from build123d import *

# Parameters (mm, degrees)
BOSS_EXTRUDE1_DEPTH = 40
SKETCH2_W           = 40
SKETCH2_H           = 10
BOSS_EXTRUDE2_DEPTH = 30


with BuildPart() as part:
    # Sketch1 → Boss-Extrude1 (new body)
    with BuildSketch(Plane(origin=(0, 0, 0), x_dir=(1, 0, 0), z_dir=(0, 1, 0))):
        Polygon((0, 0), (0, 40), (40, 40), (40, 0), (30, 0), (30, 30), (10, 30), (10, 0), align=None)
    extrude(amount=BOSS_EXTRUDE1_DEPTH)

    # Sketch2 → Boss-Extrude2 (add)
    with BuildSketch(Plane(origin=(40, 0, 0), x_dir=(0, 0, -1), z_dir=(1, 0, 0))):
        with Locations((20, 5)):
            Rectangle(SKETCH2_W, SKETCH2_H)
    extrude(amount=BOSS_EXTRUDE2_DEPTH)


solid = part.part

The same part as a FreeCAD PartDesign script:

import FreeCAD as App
import Part
import Sketcher
from FreeCAD import Vector
Q = App.Units.Quantity


def add_polygon(sketch, points):
    """Adds a closed chain of lines whose ends are joined by coincident constraints."""
    first, n = sketch.GeometryCount, len(points)
    for a, b in zip(points, points[1:] + points[:1]):
        sketch.addGeometry(Part.LineSegment(App.Vector(*a, 0), App.Vector(*b, 0)), False)
    for i in range(n):
        sketch.addConstraint(Sketcher.Constraint("Coincident", first + i, 2, first + (i + 1) % n, 1))

doc = App.newDocument("Part")
params = doc.addObject("Spreadsheet::Sheet", "Params")
for row, (alias, value) in enumerate([
    ("sketch1_width", "10 mm"),
    ("sketch1_width2", "20 mm"),
    ("sketch1_height", "30 mm"),
    ("pad1_length", "40 mm"),
    ("sketch2_width", "10 mm"),
    ("sketch2_height", "40 mm"),
    ("pad2_length", "30 mm"),
], start=1):
    params.set(f"A{row}", alias)
    params.set(f"B{row}", "=" + value)
    params.setAlias(f"B{row}", alias)

body = doc.addObject("PartDesign::Body", "Body")

# Sketch on XZ plane
sketch1 = doc.addObject("Sketcher::SketchObject", "Sketch")
body.addObject(sketch1)
sketch1.AttachmentSupport = (doc.XZ_Plane, [""])
sketch1.MapMode = "FlatFace"
add_polygon(sketch1, [(0, -40), (0, 0), (10, 0), (10, -30), (30, -30), (30, 0), (40, 0), (40, -40)])  # lines 0-7
sketch1.addConstraint([
    Sketcher.Constraint("Vertical", 0),
    Sketcher.Constraint("Horizontal", 1),
    Sketcher.Constraint("Vertical", 2),
    Sketcher.Constraint("Horizontal", 3),
    Sketcher.Constraint("Vertical", 4),
    Sketcher.Constraint("Horizontal", 5),
    Sketcher.Constraint("Vertical", 6),
    Sketcher.Constraint("Horizontal", 7),
    Sketcher.Constraint("Coincident", 0, 2, -1, 1),
    Sketcher.Constraint("PointOnObject", 4, 2, -1),
    Sketcher.Constraint("Equal", 1, 5),
    Sketcher.Constraint("Equal", 7, 0),
    Sketcher.Constraint("DistanceX", 1, 1, 1, 2, Q("10 mm")),
    Sketcher.Constraint("DistanceX", 3, 1, 3, 2, Q("20 mm")),
    Sketcher.Constraint("DistanceY", 2, 2, 2, 1, Q("30 mm")),
])
sketch1.setExpression("Constraints[20]", "Params.sketch1_width")
sketch1.setExpression("Constraints[21]", "Params.sketch1_width2")
sketch1.setExpression("Constraints[22]", "Params.sketch1_height")
pad1 = doc.addObject("PartDesign::Pad", "Pad")
body.addObject(pad1)
pad1.Profile = sketch1
pad1.setExpression("Length", "Params.pad1_length")
pad1.Reversed = True

# Sketch on YZ plane
sketch2 = doc.addObject("Sketcher::SketchObject", "Sketch001")
body.addObject(sketch2)
sketch2.AttachmentSupport = (doc.YZ_Plane, [""])
sketch2.MapMode = "FlatFace"
sketch2.AttachmentOffset = App.Placement(Vector(0, 0, 40), App.Rotation())
add_polygon(sketch2, [(10, 0), (0, 0), (0, -40), (10, -40)])  # lines 0-3
sketch2.addConstraint([
    Sketcher.Constraint("Horizontal", 0),
    Sketcher.Constraint("Vertical", 1),
    Sketcher.Constraint("Horizontal", 2),
    Sketcher.Constraint("Vertical", 3),
    Sketcher.Constraint("Coincident", 0, 2, -1, 1),
    Sketcher.Constraint("DistanceX", 0, 2, 0, 1, Q("10 mm")),
    Sketcher.Constraint("DistanceY", 1, 2, 1, 1, Q("40 mm")),
])
sketch2.setExpression("Constraints[9]", "Params.sketch2_width")
sketch2.setExpression("Constraints[10]", "Params.sketch2_height")
pad2 = doc.addObject("PartDesign::Pad", "Pad001")
body.addObject(pad2)
pad2.Profile = sketch2
pad2.setExpression("Length", "Params.pad2_length")

doc.recompute()
